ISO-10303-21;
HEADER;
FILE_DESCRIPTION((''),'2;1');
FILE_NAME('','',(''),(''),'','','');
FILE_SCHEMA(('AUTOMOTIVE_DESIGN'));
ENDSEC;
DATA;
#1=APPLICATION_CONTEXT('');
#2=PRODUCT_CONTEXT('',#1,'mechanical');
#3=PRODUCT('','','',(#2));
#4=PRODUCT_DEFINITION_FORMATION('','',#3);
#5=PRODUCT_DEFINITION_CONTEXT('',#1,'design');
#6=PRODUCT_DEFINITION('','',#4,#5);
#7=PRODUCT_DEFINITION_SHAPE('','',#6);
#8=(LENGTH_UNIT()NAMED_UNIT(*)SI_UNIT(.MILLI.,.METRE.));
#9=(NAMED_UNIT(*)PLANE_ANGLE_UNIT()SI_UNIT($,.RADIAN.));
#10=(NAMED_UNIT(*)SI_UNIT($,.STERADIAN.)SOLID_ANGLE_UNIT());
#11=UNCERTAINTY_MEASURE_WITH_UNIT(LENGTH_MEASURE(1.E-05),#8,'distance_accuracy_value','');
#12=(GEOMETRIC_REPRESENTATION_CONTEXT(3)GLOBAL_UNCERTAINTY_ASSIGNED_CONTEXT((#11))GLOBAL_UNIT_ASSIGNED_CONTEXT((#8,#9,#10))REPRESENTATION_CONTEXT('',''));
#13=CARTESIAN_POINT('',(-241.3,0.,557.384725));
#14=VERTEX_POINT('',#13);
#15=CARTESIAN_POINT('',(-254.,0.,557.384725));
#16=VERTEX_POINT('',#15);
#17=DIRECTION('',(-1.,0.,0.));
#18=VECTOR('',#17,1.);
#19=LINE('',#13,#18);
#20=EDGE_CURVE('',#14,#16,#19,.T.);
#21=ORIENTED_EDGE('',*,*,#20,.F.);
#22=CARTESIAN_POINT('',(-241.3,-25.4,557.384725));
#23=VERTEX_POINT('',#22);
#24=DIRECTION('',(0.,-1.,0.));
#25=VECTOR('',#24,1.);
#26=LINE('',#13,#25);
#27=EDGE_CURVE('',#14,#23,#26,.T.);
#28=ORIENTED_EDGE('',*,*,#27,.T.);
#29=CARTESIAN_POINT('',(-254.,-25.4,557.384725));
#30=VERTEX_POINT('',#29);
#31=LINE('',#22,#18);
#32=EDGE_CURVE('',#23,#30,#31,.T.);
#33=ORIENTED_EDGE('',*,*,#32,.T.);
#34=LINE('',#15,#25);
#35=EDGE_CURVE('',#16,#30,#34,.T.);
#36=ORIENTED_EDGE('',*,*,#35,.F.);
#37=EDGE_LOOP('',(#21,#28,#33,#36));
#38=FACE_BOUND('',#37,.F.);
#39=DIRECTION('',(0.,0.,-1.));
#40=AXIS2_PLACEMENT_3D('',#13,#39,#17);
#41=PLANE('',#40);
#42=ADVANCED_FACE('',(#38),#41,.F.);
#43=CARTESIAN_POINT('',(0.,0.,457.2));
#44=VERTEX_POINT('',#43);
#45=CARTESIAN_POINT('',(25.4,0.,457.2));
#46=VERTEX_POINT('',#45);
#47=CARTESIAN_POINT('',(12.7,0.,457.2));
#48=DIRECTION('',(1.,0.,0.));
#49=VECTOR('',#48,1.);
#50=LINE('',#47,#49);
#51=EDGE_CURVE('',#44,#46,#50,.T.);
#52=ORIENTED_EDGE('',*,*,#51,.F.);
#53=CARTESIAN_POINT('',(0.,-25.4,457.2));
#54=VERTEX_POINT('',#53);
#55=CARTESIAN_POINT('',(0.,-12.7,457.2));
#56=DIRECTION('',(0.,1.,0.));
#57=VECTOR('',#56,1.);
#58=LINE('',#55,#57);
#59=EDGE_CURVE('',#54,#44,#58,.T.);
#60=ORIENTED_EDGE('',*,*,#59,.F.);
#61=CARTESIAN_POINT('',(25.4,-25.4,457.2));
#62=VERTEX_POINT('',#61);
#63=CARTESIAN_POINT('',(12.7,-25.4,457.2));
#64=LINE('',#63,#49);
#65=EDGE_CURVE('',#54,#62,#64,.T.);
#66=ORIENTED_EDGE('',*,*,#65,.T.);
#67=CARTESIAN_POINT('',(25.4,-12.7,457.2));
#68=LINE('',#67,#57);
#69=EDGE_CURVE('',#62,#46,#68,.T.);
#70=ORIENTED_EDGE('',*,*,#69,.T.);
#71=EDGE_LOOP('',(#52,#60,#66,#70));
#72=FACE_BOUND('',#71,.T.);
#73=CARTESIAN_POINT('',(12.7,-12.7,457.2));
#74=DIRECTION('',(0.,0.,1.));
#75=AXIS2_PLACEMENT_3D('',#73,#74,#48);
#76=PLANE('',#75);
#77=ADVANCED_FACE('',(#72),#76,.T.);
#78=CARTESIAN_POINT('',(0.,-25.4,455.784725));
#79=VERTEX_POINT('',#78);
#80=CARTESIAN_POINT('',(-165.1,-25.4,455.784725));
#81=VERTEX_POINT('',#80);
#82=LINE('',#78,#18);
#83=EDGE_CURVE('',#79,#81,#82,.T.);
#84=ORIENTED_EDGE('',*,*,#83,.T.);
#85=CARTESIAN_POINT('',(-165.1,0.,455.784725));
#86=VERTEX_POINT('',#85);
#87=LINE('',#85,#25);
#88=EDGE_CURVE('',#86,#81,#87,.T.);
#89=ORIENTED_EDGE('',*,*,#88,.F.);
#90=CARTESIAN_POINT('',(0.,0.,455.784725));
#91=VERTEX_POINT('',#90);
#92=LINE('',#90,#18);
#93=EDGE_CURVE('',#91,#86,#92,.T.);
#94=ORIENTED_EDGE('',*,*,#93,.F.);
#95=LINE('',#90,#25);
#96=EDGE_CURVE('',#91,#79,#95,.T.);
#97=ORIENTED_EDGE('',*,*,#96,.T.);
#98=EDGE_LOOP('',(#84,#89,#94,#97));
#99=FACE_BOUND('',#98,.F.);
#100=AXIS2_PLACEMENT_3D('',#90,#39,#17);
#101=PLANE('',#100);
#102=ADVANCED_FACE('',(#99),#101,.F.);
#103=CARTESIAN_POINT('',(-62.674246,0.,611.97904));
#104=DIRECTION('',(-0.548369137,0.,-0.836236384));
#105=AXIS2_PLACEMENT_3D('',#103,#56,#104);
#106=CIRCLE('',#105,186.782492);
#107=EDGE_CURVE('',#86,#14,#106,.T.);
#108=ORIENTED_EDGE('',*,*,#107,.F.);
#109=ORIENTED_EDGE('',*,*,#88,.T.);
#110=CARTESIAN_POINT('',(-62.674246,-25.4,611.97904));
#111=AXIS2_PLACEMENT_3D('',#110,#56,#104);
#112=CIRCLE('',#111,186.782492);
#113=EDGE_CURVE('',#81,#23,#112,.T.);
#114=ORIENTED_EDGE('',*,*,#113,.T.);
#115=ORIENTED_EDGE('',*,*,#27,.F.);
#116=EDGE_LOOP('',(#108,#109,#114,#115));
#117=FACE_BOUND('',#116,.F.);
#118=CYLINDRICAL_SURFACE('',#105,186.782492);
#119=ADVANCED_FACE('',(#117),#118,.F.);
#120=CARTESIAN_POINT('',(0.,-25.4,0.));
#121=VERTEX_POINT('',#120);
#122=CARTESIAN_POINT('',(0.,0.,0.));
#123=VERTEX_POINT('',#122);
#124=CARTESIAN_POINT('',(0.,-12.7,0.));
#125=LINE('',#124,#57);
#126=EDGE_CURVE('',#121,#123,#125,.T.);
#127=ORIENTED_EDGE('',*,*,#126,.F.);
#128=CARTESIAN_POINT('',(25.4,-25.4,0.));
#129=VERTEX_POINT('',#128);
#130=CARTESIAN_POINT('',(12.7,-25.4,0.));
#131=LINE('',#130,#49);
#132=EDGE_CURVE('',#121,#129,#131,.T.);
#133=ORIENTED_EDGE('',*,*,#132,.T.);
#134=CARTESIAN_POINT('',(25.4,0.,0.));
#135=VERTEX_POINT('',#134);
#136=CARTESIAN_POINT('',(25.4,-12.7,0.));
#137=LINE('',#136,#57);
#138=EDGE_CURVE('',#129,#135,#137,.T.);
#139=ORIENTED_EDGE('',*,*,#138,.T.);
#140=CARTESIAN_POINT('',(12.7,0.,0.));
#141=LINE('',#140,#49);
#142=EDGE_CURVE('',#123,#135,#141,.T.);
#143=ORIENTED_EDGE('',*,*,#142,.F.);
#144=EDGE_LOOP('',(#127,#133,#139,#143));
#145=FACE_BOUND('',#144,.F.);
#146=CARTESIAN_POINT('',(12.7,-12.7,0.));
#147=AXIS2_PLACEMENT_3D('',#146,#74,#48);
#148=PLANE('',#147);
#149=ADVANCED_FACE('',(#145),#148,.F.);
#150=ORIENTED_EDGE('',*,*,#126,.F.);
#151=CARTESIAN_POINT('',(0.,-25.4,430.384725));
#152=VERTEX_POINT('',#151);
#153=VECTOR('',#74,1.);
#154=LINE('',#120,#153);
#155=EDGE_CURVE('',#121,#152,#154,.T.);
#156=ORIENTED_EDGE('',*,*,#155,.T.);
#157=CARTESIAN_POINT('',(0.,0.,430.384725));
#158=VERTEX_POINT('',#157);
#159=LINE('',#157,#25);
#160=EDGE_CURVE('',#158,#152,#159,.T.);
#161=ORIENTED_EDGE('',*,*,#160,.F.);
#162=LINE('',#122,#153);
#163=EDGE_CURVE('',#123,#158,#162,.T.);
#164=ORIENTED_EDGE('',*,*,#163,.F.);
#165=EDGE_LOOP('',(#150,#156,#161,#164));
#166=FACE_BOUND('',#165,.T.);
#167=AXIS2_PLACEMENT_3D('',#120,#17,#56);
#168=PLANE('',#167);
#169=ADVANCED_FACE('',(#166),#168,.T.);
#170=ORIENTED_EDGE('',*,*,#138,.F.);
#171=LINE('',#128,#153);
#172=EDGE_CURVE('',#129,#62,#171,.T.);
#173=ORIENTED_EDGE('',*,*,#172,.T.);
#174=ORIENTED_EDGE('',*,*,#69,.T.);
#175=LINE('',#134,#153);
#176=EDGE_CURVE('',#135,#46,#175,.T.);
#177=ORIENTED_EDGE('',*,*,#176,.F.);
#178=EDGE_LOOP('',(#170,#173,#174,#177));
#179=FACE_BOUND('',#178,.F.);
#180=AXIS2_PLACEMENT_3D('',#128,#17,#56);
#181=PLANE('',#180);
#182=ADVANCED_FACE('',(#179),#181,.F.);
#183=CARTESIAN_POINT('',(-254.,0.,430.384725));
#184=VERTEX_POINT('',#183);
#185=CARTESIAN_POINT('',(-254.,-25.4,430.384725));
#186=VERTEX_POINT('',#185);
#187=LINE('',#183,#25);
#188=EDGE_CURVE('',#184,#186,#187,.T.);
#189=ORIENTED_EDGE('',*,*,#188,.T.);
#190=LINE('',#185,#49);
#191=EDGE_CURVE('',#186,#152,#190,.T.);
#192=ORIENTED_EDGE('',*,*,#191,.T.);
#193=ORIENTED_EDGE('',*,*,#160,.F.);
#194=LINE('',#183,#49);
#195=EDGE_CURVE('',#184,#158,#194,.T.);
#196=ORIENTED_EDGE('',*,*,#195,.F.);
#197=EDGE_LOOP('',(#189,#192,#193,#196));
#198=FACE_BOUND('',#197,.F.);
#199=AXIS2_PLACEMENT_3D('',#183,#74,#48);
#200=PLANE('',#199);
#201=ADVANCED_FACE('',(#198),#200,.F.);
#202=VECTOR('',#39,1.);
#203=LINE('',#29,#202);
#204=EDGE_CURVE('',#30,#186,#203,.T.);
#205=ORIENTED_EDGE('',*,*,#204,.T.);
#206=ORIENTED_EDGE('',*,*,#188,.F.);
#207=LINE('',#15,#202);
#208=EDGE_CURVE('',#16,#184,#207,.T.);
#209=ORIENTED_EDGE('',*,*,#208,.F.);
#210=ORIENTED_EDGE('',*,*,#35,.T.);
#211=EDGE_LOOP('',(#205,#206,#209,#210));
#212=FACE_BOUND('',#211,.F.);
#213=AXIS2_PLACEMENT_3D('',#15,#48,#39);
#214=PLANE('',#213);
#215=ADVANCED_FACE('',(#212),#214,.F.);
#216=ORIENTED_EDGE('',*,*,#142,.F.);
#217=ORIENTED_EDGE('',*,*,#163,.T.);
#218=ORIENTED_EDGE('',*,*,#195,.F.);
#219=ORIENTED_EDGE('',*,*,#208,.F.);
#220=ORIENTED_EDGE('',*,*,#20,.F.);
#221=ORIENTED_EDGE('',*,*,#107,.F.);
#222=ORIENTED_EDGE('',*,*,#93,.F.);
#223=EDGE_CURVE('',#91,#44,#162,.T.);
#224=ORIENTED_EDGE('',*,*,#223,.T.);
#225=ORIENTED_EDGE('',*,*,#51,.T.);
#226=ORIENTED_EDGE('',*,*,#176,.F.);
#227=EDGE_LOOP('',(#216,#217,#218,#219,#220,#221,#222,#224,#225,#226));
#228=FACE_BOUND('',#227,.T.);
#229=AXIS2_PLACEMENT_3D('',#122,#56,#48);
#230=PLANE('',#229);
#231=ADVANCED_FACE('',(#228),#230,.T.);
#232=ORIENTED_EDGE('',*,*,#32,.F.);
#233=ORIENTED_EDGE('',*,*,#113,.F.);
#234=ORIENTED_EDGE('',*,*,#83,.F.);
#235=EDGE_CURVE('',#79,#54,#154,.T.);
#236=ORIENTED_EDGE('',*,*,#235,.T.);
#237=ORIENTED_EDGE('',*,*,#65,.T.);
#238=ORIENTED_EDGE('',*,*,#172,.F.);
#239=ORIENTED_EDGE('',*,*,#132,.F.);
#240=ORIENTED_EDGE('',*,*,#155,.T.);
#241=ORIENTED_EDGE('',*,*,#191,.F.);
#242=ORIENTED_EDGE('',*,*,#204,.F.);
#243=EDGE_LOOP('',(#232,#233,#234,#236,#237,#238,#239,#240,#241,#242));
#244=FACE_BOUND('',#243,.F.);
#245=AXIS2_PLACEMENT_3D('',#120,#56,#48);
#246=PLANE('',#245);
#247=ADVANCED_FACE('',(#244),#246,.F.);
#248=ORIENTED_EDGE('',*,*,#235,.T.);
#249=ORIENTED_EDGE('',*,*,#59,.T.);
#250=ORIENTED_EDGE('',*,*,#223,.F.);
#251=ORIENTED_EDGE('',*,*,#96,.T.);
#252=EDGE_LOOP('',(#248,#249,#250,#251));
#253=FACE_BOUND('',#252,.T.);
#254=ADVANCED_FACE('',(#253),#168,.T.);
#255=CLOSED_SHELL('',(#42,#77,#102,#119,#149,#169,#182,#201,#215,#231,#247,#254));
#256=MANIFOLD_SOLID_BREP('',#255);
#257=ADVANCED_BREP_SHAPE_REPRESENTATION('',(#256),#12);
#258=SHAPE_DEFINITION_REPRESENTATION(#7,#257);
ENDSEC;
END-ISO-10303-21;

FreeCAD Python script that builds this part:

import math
import FreeCAD as App
import Part
import Sketcher
from FreeCAD import Vector
Q = App.Units.Quantity

doc = App.newDocument("Part")
body = doc.addObject("PartDesign::Body", "Body")

sketch1 = doc.addObject("Sketcher::SketchObject", "Sketch")
body.addObject(sketch1)
sketch1.AttachmentSupport = (doc.XY_Plane, [""])
sketch1.MapMode = "FlatFace"
sketch1.addGeometry([
    Part.LineSegment(Vector(0, 0, 0), Vector(0, -25, 0)),
    Part.LineSegment(Vector(0, -25, 0), Vector(25, -25, 0)),
    Part.LineSegment(Vector(25, -25, 0), Vector(25, 0, 0)),
    Part.LineSegment(Vector(25, 0, 0), Vector(0, 0, 0)),
], False)
sketch1.addConstraint([
    Sketcher.Constraint("Coincident", 0, 2, 1, 1),
    Sketcher.Constraint("Coincident", 1, 2, 2, 1),
    Sketcher.Constraint("Coincident", 2, 2, 3, 1),
    Sketcher.Constraint("Coincident", 3, 2, 0, 1),
    Sketcher.Constraint("Vertical", 0),
    Sketcher.Constraint("Horizontal", 1),
    Sketcher.Constraint("Vertical", 2),
    Sketcher.Constraint("Horizontal", 3),
    Sketcher.Constraint("Coincident", 3, 2, -1, 1),
    Sketcher.Constraint("Equal", 3, 0),
    Sketcher.Constraint("DistanceX", 1, 1, 1, 2, Q("1 in")),
])
pad1 = doc.addObject("PartDesign::Pad", "Pad")
body.addObject(pad1)
pad1.Profile = sketch1
pad1.Length = Q("18 in")

sketch2 = doc.addObject("Sketcher::SketchObject", "Sketch001")
body.addObject(sketch2)
sketch2.AttachmentSupport = (doc.XZ_Plane, [""])
sketch2.MapMode = "FlatFace"
sketch2.addGeometry([
    Part.LineSegment(Vector(0, 430, 0), Vector(0, 456, 0)),
    Part.LineSegment(Vector(0, 456, 0), Vector(-165, 456, 0)),
    Part.ArcOfCircle(Part.Circle(Vector(-63, 612, 0), Vector(0, 0, 1), 187), math.radians(-163), math.radians(-123)),
    Part.LineSegment(Vector(-241, 557, 0), Vector(-254, 557, 0)),
    Part.LineSegment(Vector(-254, 557, 0), Vector(-254, 430, 0)),
    Part.LineSegment(Vector(-254, 430, 0), Vector(0, 430, 0)),
], False)
sketch2.addConstraint([
    Sketcher.Constraint("Coincident", 0, 2, 1, 1),
    Sketcher.Constraint("Coincident", 1, 2, 2, 2),
    Sketcher.Constraint("Coincident", 2, 1, 3, 1),
    Sketcher.Constraint("Coincident", 3, 2, 4, 1),
    Sketcher.Constraint("Coincident", 4, 2, 5, 1),
    Sketcher.Constraint("Coincident", 5, 2, 0, 1),
    Sketcher.Constraint("Vertical", 0),
    Sketcher.Constraint("Horizontal", 1),
    Sketcher.Constraint("Horizontal", 3),
    Sketcher.Constraint("Vertical", 4),
    Sketcher.Constraint("Horizontal", 5),
    Sketcher.Constraint("PointOnObject", 0, 2, -2),
    Sketcher.Constraint("DistanceX", 5, 1, 5, 2, Q("10 in")),
    Sketcher.Constraint("DistanceY", 0, 1, 0, 2, Q("1 in")),
    Sketcher.Constraint("DistanceY", 4, 2, 4, 1, Q("5 in")),
    Sketcher.Constraint("DistanceX", 1, 2, 1, 1, Q("6.5 in")),
    Sketcher.Constraint("DistanceX", 3, 2, 3, 1, Q("0.5 in")),
    Sketcher.Constraint("Radius", 2, Q("186.782492 mm")),
    Sketcher.Constraint("DistanceY", -1, 1, 2, 3, Q("611.97904 mm")),
])
pad2 = doc.addObject("PartDesign::Pad", "Pad001")
body.addObject(pad2)
pad2.Profile = sketch2
pad2.Length = Q("1 in")

doc.recompute()
